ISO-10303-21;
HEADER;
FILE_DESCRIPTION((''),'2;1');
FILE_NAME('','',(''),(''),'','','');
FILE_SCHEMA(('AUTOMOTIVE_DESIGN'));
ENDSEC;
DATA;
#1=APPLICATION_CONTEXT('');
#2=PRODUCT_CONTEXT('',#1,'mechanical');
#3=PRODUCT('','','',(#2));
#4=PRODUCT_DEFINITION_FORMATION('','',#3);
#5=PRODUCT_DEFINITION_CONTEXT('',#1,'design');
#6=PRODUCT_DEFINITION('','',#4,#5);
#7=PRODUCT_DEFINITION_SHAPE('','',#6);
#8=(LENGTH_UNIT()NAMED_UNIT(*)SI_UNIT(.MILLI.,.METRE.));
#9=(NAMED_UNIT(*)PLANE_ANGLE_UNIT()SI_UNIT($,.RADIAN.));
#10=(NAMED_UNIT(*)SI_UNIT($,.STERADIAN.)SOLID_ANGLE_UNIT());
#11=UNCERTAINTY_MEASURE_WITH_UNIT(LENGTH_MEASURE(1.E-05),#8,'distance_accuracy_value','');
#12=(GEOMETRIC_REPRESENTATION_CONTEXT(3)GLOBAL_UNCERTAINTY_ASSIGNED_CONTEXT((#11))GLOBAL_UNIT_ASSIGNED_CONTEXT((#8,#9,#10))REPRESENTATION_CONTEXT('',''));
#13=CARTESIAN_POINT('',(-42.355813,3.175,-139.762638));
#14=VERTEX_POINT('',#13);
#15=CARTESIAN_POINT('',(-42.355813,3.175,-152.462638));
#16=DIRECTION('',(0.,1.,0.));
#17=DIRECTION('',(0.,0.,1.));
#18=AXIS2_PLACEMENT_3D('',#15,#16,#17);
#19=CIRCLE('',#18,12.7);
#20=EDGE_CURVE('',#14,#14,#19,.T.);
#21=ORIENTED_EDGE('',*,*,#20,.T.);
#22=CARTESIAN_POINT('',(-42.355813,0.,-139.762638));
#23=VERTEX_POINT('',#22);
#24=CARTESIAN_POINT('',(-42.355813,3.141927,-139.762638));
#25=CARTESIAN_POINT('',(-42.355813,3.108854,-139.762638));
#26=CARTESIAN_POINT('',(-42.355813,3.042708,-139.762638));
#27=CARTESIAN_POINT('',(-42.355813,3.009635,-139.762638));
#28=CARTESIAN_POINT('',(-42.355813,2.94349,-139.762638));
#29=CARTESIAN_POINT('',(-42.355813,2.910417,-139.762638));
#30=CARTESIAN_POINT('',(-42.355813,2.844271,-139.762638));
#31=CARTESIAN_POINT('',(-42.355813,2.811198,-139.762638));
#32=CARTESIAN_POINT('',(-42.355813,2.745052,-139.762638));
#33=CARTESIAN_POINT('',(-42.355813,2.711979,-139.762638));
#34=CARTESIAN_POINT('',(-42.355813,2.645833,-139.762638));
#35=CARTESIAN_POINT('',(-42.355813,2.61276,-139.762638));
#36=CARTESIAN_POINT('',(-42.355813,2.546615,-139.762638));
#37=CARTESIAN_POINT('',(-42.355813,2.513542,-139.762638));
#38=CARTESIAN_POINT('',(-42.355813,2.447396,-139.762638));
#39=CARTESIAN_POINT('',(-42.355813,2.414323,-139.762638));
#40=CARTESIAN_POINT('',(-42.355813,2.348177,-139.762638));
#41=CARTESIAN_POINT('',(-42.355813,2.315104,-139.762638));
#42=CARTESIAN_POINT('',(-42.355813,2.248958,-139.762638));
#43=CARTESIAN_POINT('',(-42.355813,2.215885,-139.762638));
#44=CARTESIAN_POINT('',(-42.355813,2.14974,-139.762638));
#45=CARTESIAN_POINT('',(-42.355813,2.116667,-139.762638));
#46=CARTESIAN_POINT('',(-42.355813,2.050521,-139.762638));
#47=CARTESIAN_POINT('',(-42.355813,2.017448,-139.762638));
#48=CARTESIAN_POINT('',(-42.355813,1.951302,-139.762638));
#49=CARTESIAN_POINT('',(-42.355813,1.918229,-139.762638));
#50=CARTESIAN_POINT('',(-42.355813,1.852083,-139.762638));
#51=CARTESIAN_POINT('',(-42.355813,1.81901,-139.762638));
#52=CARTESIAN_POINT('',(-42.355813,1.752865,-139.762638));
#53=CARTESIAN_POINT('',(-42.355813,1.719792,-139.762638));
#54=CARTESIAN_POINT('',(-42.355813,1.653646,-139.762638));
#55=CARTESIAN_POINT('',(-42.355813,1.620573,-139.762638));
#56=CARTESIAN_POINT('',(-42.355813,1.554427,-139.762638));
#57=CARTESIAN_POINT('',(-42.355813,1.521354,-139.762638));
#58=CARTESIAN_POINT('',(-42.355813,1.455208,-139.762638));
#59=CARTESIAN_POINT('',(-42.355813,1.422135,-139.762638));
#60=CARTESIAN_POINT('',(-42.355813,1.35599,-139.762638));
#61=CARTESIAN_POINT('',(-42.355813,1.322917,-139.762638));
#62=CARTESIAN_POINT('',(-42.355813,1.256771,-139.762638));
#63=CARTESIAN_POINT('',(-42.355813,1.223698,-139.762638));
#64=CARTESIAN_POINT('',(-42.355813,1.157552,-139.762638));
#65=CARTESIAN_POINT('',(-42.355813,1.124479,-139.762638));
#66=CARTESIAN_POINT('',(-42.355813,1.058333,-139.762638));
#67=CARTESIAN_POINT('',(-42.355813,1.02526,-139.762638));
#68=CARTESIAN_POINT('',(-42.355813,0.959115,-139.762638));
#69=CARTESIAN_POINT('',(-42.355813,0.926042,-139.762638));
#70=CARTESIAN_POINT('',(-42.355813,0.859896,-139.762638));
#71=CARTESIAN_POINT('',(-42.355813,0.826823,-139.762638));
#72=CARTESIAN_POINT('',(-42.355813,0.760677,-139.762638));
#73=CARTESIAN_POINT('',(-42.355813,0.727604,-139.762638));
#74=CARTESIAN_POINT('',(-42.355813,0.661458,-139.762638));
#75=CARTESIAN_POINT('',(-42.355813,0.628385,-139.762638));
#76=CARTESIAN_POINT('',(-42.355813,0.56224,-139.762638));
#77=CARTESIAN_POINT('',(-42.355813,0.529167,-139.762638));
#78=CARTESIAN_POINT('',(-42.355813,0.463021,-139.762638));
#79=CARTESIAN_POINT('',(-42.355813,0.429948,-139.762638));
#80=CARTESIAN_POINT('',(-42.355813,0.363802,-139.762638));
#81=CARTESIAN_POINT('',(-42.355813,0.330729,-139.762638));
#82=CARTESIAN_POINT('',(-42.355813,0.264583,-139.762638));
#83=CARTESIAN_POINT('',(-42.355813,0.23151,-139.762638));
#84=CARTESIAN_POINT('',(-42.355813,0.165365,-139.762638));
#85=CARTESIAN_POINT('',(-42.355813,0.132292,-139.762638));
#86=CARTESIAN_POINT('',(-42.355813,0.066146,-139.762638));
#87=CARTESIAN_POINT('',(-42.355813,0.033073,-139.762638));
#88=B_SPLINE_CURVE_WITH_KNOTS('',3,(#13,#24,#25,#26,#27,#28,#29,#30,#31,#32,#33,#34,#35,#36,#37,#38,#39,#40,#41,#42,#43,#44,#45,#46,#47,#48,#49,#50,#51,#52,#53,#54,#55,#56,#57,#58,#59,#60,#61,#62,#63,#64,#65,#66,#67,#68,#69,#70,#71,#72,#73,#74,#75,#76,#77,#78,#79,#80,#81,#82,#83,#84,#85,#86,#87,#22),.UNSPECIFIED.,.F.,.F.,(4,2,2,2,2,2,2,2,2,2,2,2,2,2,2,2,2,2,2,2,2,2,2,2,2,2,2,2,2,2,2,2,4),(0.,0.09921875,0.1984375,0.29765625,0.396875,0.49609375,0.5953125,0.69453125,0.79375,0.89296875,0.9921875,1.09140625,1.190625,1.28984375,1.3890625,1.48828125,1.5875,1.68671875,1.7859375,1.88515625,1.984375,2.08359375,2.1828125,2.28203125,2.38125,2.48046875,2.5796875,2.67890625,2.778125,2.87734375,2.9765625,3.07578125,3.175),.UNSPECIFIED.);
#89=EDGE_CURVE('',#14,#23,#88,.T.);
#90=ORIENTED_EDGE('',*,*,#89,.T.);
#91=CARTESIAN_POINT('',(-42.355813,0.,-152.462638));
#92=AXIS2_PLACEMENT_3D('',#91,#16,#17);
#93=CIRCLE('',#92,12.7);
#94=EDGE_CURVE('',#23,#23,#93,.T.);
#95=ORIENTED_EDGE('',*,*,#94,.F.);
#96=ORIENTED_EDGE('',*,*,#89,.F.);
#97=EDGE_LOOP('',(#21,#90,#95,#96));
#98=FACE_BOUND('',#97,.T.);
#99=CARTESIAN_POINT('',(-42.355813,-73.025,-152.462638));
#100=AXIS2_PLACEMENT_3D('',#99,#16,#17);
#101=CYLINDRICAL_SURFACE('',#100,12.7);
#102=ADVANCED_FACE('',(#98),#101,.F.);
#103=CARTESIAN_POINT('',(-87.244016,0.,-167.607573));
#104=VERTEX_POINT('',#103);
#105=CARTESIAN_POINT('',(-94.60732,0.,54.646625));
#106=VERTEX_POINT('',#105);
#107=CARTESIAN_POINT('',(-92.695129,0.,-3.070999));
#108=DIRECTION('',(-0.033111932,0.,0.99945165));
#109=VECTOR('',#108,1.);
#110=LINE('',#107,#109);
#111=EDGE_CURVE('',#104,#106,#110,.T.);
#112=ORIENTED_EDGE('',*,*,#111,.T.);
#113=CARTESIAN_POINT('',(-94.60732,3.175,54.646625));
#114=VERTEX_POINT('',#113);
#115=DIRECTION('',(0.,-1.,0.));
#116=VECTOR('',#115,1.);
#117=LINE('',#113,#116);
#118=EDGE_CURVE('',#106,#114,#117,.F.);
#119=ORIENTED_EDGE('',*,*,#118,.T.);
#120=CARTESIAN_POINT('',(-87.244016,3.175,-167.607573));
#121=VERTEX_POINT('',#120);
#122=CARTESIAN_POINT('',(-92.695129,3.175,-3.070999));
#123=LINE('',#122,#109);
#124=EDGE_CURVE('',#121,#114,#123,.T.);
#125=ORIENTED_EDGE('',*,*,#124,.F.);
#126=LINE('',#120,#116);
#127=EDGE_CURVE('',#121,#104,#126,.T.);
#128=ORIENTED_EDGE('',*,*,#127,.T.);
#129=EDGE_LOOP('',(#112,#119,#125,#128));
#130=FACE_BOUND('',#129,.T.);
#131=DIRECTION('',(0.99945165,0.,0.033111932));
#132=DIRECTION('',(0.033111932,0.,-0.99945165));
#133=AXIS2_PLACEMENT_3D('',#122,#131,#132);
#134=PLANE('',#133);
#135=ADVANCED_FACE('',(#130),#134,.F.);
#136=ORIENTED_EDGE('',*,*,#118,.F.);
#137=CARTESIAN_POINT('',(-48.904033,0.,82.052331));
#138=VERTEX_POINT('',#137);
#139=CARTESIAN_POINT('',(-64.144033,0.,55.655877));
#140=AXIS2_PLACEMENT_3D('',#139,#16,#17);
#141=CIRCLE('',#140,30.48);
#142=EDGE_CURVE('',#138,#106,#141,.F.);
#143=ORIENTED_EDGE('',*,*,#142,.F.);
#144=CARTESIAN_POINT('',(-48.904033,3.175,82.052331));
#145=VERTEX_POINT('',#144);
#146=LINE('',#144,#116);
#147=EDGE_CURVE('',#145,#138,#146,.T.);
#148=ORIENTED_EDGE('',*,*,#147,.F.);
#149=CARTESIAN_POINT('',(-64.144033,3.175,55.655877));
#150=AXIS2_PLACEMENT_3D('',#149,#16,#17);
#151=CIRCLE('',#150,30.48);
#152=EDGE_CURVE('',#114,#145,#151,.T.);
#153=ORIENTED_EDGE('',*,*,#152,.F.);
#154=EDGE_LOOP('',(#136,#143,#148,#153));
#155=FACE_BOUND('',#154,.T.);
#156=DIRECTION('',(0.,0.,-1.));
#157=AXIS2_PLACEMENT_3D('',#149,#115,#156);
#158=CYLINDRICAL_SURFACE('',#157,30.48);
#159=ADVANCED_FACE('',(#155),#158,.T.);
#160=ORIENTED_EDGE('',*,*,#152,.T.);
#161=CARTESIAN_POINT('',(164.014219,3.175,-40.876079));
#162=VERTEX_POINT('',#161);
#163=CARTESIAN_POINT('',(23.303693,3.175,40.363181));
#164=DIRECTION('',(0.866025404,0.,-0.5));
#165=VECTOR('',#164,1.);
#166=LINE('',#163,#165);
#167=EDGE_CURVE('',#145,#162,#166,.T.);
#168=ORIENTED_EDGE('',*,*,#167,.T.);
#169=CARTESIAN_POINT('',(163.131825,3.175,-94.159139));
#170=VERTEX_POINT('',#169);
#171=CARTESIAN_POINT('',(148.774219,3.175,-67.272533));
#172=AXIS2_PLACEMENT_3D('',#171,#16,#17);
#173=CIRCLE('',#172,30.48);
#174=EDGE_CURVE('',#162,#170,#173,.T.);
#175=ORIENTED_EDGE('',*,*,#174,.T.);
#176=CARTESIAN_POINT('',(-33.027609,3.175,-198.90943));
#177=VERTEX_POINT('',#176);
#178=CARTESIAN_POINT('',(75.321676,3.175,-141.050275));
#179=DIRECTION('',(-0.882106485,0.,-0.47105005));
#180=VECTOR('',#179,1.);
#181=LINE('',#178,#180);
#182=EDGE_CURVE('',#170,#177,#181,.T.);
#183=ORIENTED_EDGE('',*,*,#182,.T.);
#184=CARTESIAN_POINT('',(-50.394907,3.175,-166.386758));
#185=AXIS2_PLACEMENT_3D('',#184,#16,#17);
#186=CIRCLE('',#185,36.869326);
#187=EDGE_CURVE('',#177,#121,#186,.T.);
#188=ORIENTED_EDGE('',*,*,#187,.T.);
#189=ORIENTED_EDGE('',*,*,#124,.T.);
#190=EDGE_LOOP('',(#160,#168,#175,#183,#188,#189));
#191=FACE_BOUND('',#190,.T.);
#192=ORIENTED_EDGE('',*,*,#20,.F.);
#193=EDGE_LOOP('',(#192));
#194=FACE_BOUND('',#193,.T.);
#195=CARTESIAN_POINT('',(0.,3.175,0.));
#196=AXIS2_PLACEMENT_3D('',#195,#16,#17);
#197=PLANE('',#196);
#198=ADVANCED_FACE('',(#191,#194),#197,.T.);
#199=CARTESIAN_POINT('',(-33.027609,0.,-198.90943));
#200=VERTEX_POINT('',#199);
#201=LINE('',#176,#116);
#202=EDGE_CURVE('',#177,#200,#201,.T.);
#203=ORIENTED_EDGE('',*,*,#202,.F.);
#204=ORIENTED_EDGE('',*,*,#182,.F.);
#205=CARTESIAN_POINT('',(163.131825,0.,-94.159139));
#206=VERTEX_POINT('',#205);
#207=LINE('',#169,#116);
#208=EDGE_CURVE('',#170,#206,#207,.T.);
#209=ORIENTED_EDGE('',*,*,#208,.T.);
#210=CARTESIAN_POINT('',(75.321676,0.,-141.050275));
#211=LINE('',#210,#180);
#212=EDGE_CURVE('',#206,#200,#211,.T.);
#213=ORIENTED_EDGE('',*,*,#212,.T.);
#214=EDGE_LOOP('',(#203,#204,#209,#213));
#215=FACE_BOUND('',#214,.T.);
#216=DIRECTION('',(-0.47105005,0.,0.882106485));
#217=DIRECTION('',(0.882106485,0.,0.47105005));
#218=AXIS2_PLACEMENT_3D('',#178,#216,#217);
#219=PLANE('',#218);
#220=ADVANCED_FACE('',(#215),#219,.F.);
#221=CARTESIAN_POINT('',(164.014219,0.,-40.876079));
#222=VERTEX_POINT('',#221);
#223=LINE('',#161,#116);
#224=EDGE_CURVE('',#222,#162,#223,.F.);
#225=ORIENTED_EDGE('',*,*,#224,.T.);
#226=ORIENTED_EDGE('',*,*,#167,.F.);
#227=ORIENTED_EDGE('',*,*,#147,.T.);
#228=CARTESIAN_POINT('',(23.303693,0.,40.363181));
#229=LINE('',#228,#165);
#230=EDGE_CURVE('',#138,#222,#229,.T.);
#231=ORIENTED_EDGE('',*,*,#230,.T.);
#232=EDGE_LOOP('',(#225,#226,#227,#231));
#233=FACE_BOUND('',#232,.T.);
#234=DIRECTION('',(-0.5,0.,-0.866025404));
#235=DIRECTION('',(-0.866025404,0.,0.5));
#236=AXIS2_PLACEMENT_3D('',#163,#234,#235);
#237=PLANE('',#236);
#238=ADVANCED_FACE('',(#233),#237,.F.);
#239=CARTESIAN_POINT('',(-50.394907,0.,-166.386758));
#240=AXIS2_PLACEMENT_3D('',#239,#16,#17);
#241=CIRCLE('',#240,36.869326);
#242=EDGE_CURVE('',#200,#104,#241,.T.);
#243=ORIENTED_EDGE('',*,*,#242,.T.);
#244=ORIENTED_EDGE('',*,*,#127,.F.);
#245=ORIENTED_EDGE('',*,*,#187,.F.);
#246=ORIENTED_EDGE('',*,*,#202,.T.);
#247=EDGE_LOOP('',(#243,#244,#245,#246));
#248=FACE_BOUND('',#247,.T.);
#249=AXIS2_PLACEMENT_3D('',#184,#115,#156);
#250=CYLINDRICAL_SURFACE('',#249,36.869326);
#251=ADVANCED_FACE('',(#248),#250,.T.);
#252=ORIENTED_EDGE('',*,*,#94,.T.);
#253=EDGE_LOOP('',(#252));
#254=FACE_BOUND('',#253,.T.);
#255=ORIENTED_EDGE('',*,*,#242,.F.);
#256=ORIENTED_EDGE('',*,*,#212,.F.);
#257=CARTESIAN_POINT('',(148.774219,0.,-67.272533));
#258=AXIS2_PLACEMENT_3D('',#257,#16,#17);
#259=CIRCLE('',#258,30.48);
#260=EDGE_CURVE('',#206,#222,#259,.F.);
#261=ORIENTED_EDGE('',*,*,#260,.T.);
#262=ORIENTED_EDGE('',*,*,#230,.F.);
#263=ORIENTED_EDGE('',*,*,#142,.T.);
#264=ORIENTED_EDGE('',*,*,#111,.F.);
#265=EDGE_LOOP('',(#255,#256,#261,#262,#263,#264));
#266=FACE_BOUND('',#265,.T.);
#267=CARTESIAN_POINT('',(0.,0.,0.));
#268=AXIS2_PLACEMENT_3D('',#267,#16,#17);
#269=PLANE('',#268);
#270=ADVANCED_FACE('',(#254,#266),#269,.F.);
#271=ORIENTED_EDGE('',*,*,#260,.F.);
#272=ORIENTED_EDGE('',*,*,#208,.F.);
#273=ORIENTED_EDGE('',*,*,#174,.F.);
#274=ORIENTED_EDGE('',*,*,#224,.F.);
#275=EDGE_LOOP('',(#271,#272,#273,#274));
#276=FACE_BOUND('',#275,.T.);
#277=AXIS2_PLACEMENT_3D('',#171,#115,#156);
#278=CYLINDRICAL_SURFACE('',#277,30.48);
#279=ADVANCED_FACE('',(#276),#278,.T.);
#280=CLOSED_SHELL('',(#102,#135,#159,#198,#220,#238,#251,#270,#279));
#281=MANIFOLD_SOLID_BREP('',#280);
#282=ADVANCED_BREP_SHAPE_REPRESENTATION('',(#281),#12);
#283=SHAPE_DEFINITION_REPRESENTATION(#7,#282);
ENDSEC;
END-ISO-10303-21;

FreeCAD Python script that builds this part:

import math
import FreeCAD as App
import Part
import Sketcher

V = App.Vector
Q = App.Units.Quantity


def edges_at(feature, points):
    """Names of the edges that pass closest to the given points."""
    edges = feature.Shape.Edges
    near = lambda p: min(range(len(edges)), key=lambda i: edges[i].distToShape(Part.Vertex(*p))[0])
    return sorted({f"Edge{near(p) + 1}" for p in points})

doc = App.newDocument("Part")
body = doc.addObject("PartDesign::Body", "Body")

# Sketch on XZ plane
sketch1 = doc.addObject("Sketcher::SketchObject", "Sketch")
body.addObject(sketch1)
sketch1.AttachmentSupport = (doc.XZ_Plane, [""])
sketch1.MapMode = "FlatFace"
sketch1.addGeometry([
    Part.LineSegment(V(212, -68, 0), V(-33, -199, 0)),
    Part.ArcOfCircle(Part.Circle(V(-50, -166, 0), V(0, 0, 1), 37), math.radians(-178), math.radians(-62)),
    Part.LineSegment(V(-87, -168, 0), V(-96, 109, 0)),
    Part.LineSegment(V(-96, 109, 0), V(212, -68, 0)),
], False)
sketch1.addConstraint([
    Sketcher.Constraint("Tangent", 0, 2, 1, 2),
    Sketcher.Constraint("Tangent", 1, 1, 2, 1),
    Sketcher.Constraint("Coincident", 2, 2, 3, 1),
    Sketcher.Constraint("Coincident", 3, 2, 0, 1),
    Sketcher.Constraint("Equal", 0, 2),
    Sketcher.Constraint("Distance", 3, Q("14 in")),
    Sketcher.Constraint("Angle", 3, Q("-30 deg")),
    Sketcher.Constraint("Radius", 1, 36.869326),
    Sketcher.Constraint("DistanceY", 1, 1, 2, 2, 277.095699),
    Sketcher.Constraint("DistanceY", 1, 3, -1, 1, 166.386758),
    Sketcher.Constraint("DistanceX", 0, 2, -1, 1, 33.027609),
])
pad1 = doc.addObject("PartDesign::Pad", "Pad")
body.addObject(pad1)
pad1.Profile = sketch1
pad1.Length = Q("0.125 in")
pad1.Reversed = True

# Sketch on XZ plane
sketch2 = doc.addObject("Sketcher::SketchObject", "Sketch001")
body.addObject(sketch2)
sketch2.AttachmentSupport = (doc.XZ_Plane, [""])
sketch2.MapMode = "FlatFace"
sketch2.AttachmentOffset = App.Placement(V(0, 0, -0.125 * 25.4), App.Rotation())
sketch2.addGeometry(Part.Circle(V(-42, -152, 0), V(0, 0, 1), 13), False)
sketch2.addConstraint([
    Sketcher.Constraint("Diameter", 0, Q("1 in")),
    Sketcher.Constraint("DistanceY", 0, 3, -1, 1, 152.462638),
    Sketcher.Constraint("DistanceX", 0, 3, -1, 1, 42.355813),
])
pocket1 = doc.addObject("PartDesign::Pocket", "Pocket")
body.addObject(pocket1)
pocket1.Profile = sketch2
pocket1.Length = Q("3 in")
pocket1.Reversed = True
doc.recompute()

fillet = doc.addObject("PartDesign::Fillet", "Fillet")
body.addObject(fillet)
fillet.Base = (pocket1, edges_at(pocket1, [(211.534, 1.587, -68.312), (-96.424, 1.587, 109.488)]))
fillet.Radius = Q("1.2 in")

doc.recompute()
